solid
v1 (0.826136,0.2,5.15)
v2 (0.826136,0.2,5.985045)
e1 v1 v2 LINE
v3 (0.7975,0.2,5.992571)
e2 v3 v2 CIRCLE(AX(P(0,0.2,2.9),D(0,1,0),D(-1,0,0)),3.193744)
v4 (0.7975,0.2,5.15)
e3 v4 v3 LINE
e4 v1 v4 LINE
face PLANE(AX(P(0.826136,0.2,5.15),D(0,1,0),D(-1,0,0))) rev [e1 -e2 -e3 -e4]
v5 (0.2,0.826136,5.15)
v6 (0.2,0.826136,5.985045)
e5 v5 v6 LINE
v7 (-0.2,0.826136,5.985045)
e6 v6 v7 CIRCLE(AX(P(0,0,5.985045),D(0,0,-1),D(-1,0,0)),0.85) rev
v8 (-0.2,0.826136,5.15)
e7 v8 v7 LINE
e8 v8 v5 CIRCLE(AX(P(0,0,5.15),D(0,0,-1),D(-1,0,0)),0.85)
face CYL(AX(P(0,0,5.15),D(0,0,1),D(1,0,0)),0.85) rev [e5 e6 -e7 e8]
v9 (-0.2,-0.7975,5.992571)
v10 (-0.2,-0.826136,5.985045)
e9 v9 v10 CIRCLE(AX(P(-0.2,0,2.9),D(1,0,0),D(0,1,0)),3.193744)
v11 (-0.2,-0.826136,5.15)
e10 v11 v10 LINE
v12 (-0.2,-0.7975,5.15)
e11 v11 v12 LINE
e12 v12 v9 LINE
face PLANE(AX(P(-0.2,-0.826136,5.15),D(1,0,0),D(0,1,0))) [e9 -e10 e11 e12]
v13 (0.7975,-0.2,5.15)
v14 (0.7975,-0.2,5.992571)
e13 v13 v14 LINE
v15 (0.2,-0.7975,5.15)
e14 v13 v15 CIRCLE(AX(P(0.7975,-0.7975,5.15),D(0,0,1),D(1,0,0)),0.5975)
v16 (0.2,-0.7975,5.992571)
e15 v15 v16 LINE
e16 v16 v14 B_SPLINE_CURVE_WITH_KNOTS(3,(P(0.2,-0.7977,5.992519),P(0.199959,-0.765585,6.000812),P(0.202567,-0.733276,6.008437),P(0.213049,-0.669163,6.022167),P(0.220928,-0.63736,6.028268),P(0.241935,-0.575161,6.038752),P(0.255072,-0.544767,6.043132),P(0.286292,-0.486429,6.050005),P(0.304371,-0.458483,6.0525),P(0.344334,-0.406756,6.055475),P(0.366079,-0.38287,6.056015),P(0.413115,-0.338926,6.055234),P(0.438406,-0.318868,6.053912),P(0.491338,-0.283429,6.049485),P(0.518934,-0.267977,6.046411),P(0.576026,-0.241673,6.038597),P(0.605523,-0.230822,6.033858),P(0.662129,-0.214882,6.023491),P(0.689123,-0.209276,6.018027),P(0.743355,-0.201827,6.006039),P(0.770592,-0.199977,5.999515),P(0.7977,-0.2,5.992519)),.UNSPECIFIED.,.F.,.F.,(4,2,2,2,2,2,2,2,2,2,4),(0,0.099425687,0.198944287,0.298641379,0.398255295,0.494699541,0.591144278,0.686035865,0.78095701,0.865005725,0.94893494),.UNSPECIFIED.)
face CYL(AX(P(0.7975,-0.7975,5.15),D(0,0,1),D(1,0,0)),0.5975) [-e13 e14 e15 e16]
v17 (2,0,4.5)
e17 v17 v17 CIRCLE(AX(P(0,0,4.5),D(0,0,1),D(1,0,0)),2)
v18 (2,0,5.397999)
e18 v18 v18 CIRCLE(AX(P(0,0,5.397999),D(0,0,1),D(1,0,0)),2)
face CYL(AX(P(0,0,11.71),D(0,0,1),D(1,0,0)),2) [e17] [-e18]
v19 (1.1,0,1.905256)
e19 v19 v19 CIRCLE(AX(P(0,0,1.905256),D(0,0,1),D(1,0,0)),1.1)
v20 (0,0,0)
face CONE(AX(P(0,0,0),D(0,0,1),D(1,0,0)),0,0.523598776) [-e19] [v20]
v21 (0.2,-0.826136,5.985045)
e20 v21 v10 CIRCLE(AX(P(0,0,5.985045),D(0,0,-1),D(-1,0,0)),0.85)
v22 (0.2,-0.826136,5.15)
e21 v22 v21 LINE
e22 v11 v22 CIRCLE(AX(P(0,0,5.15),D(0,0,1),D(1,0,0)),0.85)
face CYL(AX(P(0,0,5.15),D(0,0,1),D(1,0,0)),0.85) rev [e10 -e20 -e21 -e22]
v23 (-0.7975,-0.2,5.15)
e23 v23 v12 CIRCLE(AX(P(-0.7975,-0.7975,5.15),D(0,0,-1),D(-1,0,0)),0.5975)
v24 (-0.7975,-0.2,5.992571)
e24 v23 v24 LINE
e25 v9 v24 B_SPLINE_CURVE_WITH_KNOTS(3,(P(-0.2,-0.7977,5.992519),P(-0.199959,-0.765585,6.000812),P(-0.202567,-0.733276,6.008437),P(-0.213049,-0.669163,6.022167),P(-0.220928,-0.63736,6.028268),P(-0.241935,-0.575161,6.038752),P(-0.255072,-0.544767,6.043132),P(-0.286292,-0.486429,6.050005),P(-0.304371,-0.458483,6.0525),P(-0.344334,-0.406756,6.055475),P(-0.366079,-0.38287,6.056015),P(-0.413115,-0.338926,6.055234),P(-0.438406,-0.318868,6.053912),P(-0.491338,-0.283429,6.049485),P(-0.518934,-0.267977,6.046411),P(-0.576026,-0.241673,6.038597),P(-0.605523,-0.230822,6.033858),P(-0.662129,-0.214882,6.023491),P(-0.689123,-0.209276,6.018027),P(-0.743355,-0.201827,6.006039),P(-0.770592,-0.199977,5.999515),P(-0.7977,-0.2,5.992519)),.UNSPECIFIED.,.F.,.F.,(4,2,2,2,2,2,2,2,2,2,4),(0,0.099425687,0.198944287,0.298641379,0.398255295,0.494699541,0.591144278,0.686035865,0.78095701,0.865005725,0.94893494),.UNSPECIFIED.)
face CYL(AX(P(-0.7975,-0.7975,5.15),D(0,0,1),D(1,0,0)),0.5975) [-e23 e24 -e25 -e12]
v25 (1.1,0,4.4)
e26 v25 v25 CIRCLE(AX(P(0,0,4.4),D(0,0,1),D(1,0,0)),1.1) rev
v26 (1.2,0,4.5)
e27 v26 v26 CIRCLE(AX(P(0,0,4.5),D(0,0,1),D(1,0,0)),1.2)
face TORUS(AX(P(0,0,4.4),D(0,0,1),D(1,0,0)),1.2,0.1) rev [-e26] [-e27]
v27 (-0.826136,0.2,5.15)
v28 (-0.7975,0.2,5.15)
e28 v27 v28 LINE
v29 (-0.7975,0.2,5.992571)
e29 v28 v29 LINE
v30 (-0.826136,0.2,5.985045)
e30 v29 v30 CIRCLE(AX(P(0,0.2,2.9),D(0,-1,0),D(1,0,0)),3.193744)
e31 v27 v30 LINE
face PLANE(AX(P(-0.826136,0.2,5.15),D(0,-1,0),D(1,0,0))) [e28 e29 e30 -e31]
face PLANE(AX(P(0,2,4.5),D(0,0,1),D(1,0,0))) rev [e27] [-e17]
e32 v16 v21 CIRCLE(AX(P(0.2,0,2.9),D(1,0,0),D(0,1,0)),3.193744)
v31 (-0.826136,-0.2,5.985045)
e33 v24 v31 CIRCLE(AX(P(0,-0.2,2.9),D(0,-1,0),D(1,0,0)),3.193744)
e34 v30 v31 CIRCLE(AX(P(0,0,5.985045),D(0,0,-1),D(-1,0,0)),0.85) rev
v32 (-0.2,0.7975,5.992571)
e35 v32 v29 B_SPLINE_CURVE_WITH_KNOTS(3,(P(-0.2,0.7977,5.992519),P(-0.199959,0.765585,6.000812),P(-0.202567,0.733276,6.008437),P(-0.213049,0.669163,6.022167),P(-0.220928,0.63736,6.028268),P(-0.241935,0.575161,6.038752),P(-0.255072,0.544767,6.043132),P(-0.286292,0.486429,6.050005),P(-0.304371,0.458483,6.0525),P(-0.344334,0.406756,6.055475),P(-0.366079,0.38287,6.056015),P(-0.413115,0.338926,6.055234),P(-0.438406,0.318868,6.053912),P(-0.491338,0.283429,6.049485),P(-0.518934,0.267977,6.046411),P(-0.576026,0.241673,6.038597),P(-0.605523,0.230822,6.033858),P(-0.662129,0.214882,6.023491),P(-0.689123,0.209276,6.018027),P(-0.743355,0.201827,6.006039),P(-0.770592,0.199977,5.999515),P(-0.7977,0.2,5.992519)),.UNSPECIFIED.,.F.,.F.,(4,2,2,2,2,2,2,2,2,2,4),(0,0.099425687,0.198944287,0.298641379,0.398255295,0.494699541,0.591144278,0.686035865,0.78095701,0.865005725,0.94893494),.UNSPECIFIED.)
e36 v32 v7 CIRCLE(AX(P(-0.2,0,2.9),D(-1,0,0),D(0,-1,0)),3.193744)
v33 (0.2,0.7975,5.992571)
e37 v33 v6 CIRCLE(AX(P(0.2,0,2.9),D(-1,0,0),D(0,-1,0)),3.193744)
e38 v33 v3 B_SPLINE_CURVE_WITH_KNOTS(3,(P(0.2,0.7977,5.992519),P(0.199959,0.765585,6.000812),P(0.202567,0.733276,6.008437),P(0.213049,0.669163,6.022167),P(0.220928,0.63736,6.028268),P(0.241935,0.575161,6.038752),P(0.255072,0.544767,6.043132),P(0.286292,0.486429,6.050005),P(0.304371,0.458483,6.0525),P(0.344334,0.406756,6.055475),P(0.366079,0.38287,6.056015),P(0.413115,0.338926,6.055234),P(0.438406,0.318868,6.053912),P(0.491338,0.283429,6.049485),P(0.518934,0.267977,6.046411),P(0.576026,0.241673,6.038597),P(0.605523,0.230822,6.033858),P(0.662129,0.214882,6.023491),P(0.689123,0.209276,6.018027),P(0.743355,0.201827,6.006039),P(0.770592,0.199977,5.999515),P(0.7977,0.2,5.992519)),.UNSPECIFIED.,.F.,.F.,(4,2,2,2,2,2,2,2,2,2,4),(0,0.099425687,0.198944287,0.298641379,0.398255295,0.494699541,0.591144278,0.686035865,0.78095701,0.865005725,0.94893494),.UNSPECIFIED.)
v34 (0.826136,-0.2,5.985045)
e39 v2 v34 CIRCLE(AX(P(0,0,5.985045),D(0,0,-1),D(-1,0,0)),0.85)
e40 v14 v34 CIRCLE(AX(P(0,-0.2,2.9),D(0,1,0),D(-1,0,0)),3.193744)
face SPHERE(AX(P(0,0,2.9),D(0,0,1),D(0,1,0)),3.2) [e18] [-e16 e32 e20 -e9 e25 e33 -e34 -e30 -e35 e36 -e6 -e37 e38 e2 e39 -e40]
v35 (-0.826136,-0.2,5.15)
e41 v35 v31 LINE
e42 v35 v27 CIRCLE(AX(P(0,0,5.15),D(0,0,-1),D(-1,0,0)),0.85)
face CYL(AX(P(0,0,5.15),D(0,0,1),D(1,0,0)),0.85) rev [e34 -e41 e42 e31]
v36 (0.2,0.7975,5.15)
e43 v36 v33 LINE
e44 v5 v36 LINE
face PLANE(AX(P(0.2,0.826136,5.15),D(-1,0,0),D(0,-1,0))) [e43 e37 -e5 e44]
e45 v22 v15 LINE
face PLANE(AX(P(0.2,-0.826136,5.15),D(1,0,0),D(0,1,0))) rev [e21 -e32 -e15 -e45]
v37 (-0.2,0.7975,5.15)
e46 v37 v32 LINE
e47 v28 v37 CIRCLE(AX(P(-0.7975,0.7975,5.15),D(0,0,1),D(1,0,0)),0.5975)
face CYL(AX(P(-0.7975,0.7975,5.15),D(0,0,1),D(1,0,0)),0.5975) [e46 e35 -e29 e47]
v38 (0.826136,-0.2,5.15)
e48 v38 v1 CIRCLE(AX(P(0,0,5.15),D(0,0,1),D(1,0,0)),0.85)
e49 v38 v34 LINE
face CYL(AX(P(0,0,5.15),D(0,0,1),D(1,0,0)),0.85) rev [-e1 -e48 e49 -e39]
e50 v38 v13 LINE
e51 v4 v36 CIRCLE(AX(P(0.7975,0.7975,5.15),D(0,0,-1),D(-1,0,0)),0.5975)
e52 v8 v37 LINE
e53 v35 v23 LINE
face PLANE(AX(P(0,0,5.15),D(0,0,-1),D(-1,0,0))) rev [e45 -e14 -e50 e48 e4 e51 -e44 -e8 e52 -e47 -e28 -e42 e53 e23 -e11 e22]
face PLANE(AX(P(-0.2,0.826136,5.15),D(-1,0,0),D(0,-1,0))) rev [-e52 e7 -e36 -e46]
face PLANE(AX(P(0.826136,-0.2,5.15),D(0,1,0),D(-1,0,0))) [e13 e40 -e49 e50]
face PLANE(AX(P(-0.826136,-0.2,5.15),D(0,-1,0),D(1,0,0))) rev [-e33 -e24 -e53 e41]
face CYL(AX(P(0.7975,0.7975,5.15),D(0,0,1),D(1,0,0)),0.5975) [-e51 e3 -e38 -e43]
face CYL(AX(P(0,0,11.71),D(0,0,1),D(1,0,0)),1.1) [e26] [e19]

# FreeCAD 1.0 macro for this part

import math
import FreeCAD as App
import Part
import Sketcher
Q = App.Units.Quantity


def edges_at(feature, points):
    """Names of the edges that pass closest to the given points."""
    edges = feature.Shape.Edges
    near = lambda p: min(range(len(edges)), key=lambda i: edges[i].distToShape(Part.Vertex(*p))[0])
    return sorted({f"Edge{near(p) + 1}" for p in points})

doc = App.newDocument("Part")
body = doc.addObject("PartDesign::Body", "Body")

# Sketch on YZ plane
sketch1 = body.newObject("Sketcher::SketchObject", "Sketch")
sketch1.AttachmentSupport = (doc.getObject("YZ_Plane"), [""])
sketch1.MapMode = "FlatFace"
sketch1.addGeometry(Part.LineSegment(App.Vector(0, 6.1, 0), App.Vector(0, 0, 0)), False)
sketch1.addGeometry(Part.LineSegment(App.Vector(0, 0, 0), App.Vector(1.1, 1.905256, 0)), False)
sketch1.addGeometry(Part.LineSegment(App.Vector(1.1, 1.905256, 0), App.Vector(1.1, 4.5, 0)), False)
sketch1.addGeometry(Part.LineSegment(App.Vector(1.1, 4.5, 0), App.Vector(2, 4.5, 0)), False)
sketch1.addGeometry(Part.LineSegment(App.Vector(2, 4.5, 0), App.Vector(2, 5.397999, 0)), False)
sketch1.addGeometry(Part.ArcOfCircle(Part.Circle(App.Vector(0, 2.9, 0), App.Vector(0, 0, 1), 3.2), math.radians(51.317812), math.radians(90)), False)
sketch1.addConstraint(Sketcher.Constraint("Coincident", 0, 2, 1, 1))
sketch1.addConstraint(Sketcher.Constraint("Coincident", 1, 2, 2, 1))
sketch1.addConstraint(Sketcher.Constraint("Coincident", 2, 2, 3, 1))
sketch1.addConstraint(Sketcher.Constraint("Coincident", 3, 2, 4, 1))
sketch1.addConstraint(Sketcher.Constraint("Coincident", 4, 2, 5, 1))
sketch1.addConstraint(Sketcher.Constraint("Coincident", 5, 2, 0, 1))
sketch1.addConstraint(Sketcher.Constraint("Vertical", 0))
sketch1.addConstraint(Sketcher.Constraint("Vertical", 2))
sketch1.addConstraint(Sketcher.Constraint("Horizontal", 3))
sketch1.addConstraint(Sketcher.Constraint("Vertical", 4))
sketch1.addConstraint(Sketcher.Constraint("Coincident", 0, 2, -1, 1))
sketch1.addConstraint(Sketcher.Constraint("PointOnObject", 5, 3, -2))
sketch1.addConstraint(Sketcher.Constraint("Radius", 5, 3.2))
sketch1.addConstraint(Sketcher.Constraint("Angle", 1, Q("60 deg")))
sketch1.addConstraint(Sketcher.Constraint("DistanceX", 3, 1, 3, 2, 0.9))
sketch1.addConstraint(Sketcher.Constraint("DistanceY", 0, 2, 0, 1, 6.1))
sketch1.addConstraint(Sketcher.Constraint("DistanceX", -1, 1, 3, 2, 2.0))
sketch1.addConstraint(Sketcher.Constraint("DistanceY", -1, 1, 2, 2, 4.5))
revolution = body.newObject("PartDesign::Revolution", "Revolution")
revolution.Profile = sketch1
revolution.ReferenceAxis = (sketch1, ["V_Axis"])
revolution.Angle = 360

# Sketch on XY plane
sketch2 = body.newObject("Sketcher::SketchObject", "Sketch001")
sketch2.AttachmentSupport = (doc.getObject("XY_Plane"), [""])
sketch2.MapMode = "FlatFace"
sketch2.AttachmentOffset = App.Placement(App.Vector(0, 0, 6.1), App.Rotation())
sketch2.addGeometry(Part.LineSegment(App.Vector(0.2, 0.7975, 0), App.Vector(0.2, 0.826136, 0)), False)
sketch2.addGeometry(Part.ArcOfCircle(Part.Circle(App.Vector(0, 0, 0), App.Vector(0, 0, 1), 0.85), math.radians(76.391039), math.radians(103.608961)), False)
sketch2.addGeometry(Part.LineSegment(App.Vector(-0.2, 0.826136, 0), App.Vector(-0.2, 0.7975, 0)), False)
sketch2.addGeometry(Part.ArcOfCircle(Part.Circle(App.Vector(-0.7975, 0.7975, 0), App.Vector(0, 0, 1), 0.5975), math.radians(-90), math.radians(0)), False)
sketch2.addGeometry(Part.LineSegment(App.Vector(-0.7975, 0.2, 0), App.Vector(-0.826136, 0.2, 0)), False)
sketch2.addGeometry(Part.ArcOfCircle(Part.Circle(App.Vector(0, 0, 0), App.Vector(0, 0, 1), 0.85), math.radians(166.391039), math.radians(193.608961)), False)
sketch2.addGeometry(Part.LineSegment(App.Vector(-0.826136, -0.2, 0), App.Vector(-0.7975, -0.2, 0)), False)
sketch2.addGeometry(Part.ArcOfCircle(Part.Circle(App.Vector(-0.7975, -0.7975, 0), App.Vector(0, 0, 1), 0.5975), math.radians(0), math.radians(90)), False)
sketch2.addGeometry(Part.LineSegment(App.Vector(-0.2, -0.7975, 0), App.Vector(-0.2, -0.826136, 0)), False)
sketch2.addGeometry(Part.ArcOfCircle(Part.Circle(App.Vector(0, 0, 0), App.Vector(0, 0, 1), 0.85), math.radians(-103.608961), math.radians(-76.391039)), False)
sketch2.addGeometry(Part.LineSegment(App.Vector(0.2, -0.826136, 0), App.Vector(0.2, -0.7975, 0)), False)
sketch2.addGeometry(Part.ArcOfCircle(Part.Circle(App.Vector(0.7975, -0.7975, 0), App.Vector(0, 0, 1), 0.5975), math.radians(90), math.radians(180)), False)
sketch2.addGeometry(Part.LineSegment(App.Vector(0.7975, -0.2, 0), App.Vector(0.826136, -0.2, 0)), False)
sketch2.addGeometry(Part.ArcOfCircle(Part.Circle(App.Vector(0, 0, 0), App.Vector(0, 0, 1), 0.85), math.radians(-13.608961), math.radians(13.608961)), False)
sketch2.addGeometry(Part.LineSegment(App.Vector(0.826136, 0.2, 0), App.Vector(0.7975, 0.2, 0)), False)
sketch2.addGeometry(Part.ArcOfCircle(Part.Circle(App.Vector(0.7975, 0.7975, 0), App.Vector(0, 0, 1), 0.5975), math.radians(180), math.radians(270)), False)
sketch2.addConstraint(Sketcher.Constraint("Coincident", 0, 2, 1, 1))
sketch2.addConstraint(Sketcher.Constraint("Coincident", 1, 2, 2, 1))
sketch2.addConstraint(Sketcher.Constraint("Tangent", 2, 2, 3, 2))
sketch2.addConstraint(Sketcher.Constraint("Tangent", 3, 1, 4, 1))
sketch2.addConstraint(Sketcher.Constraint("Coincident", 4, 2, 5, 1))
sketch2.addConstraint(Sketcher.Constraint("Coincident", 5, 2, 6, 1))
sketch2.addConstraint(Sketcher.Constraint("Tangent", 6, 2, 7, 2))
sketch2.addConstraint(Sketcher.Constraint("Tangent", 7, 1, 8, 1))
sketch2.addConstraint(Sketcher.Constraint("Coincident", 8, 2, 9, 1))
sketch2.addConstraint(Sketcher.Constraint("Coincident", 9, 2, 10, 1))
sketch2.addConstraint(Sketcher.Constraint("Tangent", 10, 2, 11, 2))
sketch2.addConstraint(Sketcher.Constraint("Tangent", 11, 1, 12, 1))
sketch2.addConstraint(Sketcher.Constraint("Coincident", 12, 2, 13, 1))
sketch2.addConstraint(Sketcher.Constraint("Coincident", 13, 2, 14, 1))
sketch2.addConstraint(Sketcher.Constraint("Tangent", 14, 2, 15, 2))
sketch2.addConstraint(Sketcher.Constraint("Tangent", 15, 1, 0, 1))
sketch2.addConstraint(Sketcher.Constraint("Vertical", 0))
sketch2.addConstraint(Sketcher.Constraint("Vertical", 2))
sketch2.addConstraint(Sketcher.Constraint("Horizontal", 4))
sketch2.addConstraint(Sketcher.Constraint("Horizontal", 6))
sketch2.addConstraint(Sketcher.Constraint("Vertical", 8))
sketch2.addConstraint(Sketcher.Constraint("Vertical", 10))
sketch2.addConstraint(Sketcher.Constraint("Horizontal", 12))
sketch2.addConstraint(Sketcher.Constraint("Horizontal", 14))
sketch2.addConstraint(Sketcher.Constraint("Coincident", 1, 3, -1, 1))
sketch2.addConstraint(Sketcher.Constraint("Coincident", 5, 3, -1, 1))
sketch2.addConstraint(Sketcher.Constraint("Coincident", 9, 3, -1, 1))
sketch2.addConstraint(Sketcher.Constraint("Coincident", 13, 3, -1, 1))
sketch2.addConstraint(Sketcher.Constraint("Equal", 1, 5))
sketch2.addConstraint(Sketcher.Constraint("Equal", 3, 7))
sketch2.addConstraint(Sketcher.Constraint("Equal", 5, 9))
sketch2.addConstraint(Sketcher.Constraint("Equal", 7, 11))
sketch2.addConstraint(Sketcher.Constraint("Equal", 9, 13))
sketch2.addConstraint(Sketcher.Constraint("Equal", 11, 15))
sketch2.addConstraint(Sketcher.Constraint("Symmetric", 3, 3, 11, 3, -1, 1))
sketch2.addConstraint(Sketcher.Constraint("Symmetric", 7, 3, 15, 3, -1, 1))
sketch2.addConstraint(Sketcher.Constraint("Symmetric", 7, 3, 11, 3, -2))
sketch2.addConstraint(Sketcher.Constraint("Equal", 14, 0))
sketch2.addConstraint(Sketcher.Constraint("Radius", 1, 0.85))
sketch2.addConstraint(Sketcher.Constraint("DistanceX", -1, 1, 0, 2, 0.2))
sketch2.addConstraint(Sketcher.Constraint("Radius", 3, 0.5975))
pocket1 = body.newObject("PartDesign::Pocket", "Pocket")
pocket1.Profile = sketch2
pocket1.Length = 0.95
doc.recompute()

fillet = body.newObject("PartDesign::Fillet", "Fillet")
fillet.Base = (pocket1, edges_at(pocket1, [(-1.1, 0, 4.5)]))
fillet.Radius = 0.1

doc.recompute()
